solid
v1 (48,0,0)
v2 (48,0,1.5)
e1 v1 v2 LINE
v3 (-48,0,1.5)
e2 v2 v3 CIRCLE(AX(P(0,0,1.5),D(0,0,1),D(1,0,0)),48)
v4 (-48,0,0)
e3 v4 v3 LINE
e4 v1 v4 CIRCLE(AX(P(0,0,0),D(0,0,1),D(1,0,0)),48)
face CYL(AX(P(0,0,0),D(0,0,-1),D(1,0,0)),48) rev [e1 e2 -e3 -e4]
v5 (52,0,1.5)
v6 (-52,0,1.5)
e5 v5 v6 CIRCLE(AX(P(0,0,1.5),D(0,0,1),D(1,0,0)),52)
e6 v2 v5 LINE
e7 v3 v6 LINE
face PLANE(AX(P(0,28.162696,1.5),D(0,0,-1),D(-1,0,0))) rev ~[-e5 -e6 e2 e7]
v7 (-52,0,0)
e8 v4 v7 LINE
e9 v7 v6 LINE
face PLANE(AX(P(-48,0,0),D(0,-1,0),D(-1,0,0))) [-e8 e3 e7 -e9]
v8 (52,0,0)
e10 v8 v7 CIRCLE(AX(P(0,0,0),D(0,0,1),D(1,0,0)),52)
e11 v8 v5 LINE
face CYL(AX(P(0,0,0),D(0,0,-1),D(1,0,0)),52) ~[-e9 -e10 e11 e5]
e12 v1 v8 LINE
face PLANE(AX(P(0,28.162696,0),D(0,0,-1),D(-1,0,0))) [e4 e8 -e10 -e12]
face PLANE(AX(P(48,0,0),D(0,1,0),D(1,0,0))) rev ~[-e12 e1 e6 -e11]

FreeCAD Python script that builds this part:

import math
import FreeCAD as App
import Part
import Sketcher
Q = App.Units.Quantity

doc = App.newDocument("Part")
body = doc.addObject("PartDesign::Body", "Body")

# Sketch on XY plane
sketch1 = body.newObject("Sketcher::SketchObject", "Sketch")
sketch1.AttachmentSupport = (doc.getObject("XY_Plane"), [""])
sketch1.MapMode = "FlatFace"
sketch1.addGeometry([
    Part.ArcOfCircle(Part.Circle(App.Vector(0, 0, 0), App.Vector(0, 0, 1), 48), math.radians(0), math.radians(180)),
    Part.LineSegment(App.Vector(48, 0, 0), App.Vector(52, 0, 0)),
    Part.ArcOfCircle(Part.Circle(App.Vector(0, 0, 0), App.Vector(0, 0, 1), 52), math.radians(0), math.radians(180)),
    Part.LineSegment(App.Vector(-52, 0, 0), App.Vector(-48, 0, 0)),
], False)
sketch1.addConstraint([
    Sketcher.Constraint("Coincident", 0, 1, 1, 1),
    Sketcher.Constraint("Coincident", 1, 2, 2, 1),
    Sketcher.Constraint("Coincident", 2, 2, 3, 1),
    Sketcher.Constraint("Coincident", 3, 2, 0, 2),
    Sketcher.Constraint("Horizontal", 1),
    Sketcher.Constraint("Horizontal", 3),
    Sketcher.Constraint("Coincident", 0, 3, -1, 1),
    Sketcher.Constraint("Coincident", 2, 3, -1, 1),
    Sketcher.Constraint("PointOnObject", 0, 1, -1),
    Sketcher.Constraint("PointOnObject", 2, 2, -1),
    Sketcher.Constraint("Radius", 0, Q("48 mm")),
    Sketcher.Constraint("Radius", 2, Q("52 mm")),
])
pad1 = body.newObject("PartDesign::Pad", "Pad")
pad1.Profile = sketch1
pad1.Length = 1.5

doc.recompute()
